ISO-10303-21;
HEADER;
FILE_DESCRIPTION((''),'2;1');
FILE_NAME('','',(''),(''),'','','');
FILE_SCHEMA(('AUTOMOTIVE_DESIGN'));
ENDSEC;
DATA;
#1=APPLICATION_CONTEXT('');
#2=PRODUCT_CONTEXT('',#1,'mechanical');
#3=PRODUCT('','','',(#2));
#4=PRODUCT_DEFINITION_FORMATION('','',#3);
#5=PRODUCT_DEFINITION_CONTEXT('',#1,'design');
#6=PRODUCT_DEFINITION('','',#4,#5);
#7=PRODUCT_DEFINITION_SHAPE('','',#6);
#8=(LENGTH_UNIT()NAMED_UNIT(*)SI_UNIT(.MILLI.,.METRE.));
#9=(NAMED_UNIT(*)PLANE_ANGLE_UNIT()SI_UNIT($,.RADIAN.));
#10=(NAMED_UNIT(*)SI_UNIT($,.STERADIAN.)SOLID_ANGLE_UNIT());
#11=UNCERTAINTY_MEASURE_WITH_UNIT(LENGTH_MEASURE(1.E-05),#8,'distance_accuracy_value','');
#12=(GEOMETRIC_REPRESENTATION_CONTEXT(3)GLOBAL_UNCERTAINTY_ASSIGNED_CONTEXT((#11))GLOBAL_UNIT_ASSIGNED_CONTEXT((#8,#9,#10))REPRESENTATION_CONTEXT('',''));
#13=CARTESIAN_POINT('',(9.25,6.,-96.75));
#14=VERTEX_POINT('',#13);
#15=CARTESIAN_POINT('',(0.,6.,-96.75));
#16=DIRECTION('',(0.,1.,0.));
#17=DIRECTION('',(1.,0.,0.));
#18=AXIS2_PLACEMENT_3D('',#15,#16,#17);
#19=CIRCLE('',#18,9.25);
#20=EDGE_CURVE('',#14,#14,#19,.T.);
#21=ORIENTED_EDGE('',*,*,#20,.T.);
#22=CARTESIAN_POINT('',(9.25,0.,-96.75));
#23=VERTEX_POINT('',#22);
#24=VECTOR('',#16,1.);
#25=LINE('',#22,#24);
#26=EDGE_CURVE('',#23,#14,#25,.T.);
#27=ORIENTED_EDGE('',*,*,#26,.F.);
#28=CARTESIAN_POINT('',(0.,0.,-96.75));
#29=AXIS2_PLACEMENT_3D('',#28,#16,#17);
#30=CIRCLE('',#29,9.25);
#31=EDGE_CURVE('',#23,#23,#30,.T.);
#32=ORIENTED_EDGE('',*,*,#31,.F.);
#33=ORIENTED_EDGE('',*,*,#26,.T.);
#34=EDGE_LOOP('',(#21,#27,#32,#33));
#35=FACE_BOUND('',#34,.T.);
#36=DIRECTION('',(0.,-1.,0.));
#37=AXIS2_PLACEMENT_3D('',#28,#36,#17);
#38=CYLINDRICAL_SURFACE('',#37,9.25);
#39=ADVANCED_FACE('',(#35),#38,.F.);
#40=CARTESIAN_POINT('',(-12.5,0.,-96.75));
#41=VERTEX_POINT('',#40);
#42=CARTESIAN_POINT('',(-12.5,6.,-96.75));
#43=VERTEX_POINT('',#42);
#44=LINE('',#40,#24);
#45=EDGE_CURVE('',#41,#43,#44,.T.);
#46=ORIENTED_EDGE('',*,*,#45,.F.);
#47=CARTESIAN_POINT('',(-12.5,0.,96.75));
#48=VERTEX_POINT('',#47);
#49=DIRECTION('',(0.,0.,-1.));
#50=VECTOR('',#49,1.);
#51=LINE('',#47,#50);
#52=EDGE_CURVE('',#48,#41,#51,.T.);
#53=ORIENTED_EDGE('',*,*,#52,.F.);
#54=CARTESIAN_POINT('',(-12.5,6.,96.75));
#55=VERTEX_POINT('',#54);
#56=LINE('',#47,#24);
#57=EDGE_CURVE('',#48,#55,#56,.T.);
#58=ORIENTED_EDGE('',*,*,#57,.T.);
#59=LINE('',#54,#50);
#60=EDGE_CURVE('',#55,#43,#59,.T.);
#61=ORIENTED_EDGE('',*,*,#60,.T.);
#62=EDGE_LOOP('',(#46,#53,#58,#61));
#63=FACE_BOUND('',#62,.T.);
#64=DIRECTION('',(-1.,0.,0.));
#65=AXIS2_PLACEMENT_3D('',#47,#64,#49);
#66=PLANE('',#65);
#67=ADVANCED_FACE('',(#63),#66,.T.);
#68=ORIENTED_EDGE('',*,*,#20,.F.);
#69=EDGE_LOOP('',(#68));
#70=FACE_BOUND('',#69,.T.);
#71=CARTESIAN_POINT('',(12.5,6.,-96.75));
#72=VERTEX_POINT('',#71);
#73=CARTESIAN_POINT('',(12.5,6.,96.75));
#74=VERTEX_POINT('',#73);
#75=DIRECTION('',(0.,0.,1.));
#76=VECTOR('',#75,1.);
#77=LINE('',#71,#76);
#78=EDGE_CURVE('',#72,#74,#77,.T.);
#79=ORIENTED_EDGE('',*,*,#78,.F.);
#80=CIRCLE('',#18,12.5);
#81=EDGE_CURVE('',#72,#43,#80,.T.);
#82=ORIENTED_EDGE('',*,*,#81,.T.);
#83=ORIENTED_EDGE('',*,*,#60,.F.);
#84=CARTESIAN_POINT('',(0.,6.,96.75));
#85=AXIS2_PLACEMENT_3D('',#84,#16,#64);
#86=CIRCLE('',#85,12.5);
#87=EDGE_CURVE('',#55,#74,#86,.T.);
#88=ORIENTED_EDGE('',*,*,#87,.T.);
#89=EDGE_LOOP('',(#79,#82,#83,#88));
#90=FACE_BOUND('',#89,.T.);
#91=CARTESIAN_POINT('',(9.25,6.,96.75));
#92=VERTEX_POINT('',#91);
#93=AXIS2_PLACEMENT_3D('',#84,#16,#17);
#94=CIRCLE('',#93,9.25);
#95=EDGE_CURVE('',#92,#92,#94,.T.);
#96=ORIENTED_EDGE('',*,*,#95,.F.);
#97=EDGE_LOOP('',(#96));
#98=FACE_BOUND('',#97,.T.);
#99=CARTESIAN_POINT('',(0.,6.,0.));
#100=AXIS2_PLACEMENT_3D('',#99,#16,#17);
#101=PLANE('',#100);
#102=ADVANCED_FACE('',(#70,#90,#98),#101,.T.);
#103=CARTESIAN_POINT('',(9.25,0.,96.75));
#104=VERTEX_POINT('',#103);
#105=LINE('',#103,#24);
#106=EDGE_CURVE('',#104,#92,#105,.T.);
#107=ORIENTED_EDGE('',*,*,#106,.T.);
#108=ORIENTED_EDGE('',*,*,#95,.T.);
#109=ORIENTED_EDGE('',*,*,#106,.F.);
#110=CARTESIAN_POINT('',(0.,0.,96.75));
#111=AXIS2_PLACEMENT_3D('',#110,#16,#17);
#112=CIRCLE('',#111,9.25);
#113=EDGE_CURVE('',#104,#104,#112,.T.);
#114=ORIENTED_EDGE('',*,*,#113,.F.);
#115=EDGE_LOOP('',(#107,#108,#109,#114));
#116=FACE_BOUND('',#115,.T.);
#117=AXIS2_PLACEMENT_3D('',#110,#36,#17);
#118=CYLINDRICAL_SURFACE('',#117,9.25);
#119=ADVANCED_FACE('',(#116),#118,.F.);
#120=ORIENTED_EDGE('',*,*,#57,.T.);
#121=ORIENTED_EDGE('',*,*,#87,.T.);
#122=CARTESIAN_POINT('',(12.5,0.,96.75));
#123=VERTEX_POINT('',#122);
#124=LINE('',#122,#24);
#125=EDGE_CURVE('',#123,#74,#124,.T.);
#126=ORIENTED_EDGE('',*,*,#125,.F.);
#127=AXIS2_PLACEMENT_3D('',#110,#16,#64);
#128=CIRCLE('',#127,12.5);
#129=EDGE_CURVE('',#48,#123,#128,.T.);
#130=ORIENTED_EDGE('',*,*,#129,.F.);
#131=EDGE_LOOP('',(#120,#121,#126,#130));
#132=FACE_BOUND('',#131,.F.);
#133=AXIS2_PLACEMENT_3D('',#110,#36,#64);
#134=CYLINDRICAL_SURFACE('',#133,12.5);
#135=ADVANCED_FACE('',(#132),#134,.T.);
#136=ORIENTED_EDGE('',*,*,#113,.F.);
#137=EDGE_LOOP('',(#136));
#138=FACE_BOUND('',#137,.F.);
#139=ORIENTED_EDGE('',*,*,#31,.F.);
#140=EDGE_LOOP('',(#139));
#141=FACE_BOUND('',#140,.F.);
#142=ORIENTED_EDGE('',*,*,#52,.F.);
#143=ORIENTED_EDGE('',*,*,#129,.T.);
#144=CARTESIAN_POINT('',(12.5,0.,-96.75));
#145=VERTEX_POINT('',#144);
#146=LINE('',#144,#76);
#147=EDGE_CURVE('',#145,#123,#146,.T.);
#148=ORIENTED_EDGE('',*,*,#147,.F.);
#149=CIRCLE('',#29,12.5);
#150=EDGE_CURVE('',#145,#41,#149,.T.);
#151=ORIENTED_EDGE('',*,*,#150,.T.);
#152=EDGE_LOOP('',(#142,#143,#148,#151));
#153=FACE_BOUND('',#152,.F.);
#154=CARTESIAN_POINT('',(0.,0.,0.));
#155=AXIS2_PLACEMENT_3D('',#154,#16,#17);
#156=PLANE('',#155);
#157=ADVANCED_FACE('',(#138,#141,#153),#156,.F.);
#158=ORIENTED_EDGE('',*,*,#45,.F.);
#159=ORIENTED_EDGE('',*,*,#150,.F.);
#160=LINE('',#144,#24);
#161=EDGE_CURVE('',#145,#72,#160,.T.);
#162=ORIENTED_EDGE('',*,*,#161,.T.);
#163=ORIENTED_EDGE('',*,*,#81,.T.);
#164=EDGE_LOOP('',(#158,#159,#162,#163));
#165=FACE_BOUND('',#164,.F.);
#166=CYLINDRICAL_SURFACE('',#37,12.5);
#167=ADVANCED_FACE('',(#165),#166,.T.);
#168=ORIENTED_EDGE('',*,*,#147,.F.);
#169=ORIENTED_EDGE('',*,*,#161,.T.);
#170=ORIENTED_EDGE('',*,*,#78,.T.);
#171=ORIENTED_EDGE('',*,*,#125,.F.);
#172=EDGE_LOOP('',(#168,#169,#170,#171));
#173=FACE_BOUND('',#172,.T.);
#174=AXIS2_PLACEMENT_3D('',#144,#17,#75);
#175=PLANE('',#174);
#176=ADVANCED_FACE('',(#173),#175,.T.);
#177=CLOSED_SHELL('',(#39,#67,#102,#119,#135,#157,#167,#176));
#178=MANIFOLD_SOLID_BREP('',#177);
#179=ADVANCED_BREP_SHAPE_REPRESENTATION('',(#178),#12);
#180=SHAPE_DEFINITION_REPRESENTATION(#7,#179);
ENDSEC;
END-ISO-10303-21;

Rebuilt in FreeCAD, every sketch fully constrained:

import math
import FreeCAD as App
import Part
import Sketcher
from FreeCAD import Vector

doc = App.newDocument("Part")
body = doc.addObject("PartDesign::Body", "Body")

sketch1 = body.newObject("Sketcher::SketchObject", "Sketch")
sketch1.AttachmentSupport = (doc.getObject("XZ_Plane"), [""])
sketch1.MapMode = "FlatFace"
sketch1.addGeometry([
    Part.LineSegment(Vector(-12.5, -96.75, 0), Vector(-12.5, 96.75, 0)),
    Part.ArcOfCircle(Part.Circle(Vector(0, 96.75, 0), Vector(0, 0, 1), 12.5), math.radians(0), math.radians(180)),
    Part.LineSegment(Vector(12.5, 96.75, 0), Vector(12.5, -96.75, 0)),
    Part.ArcOfCircle(Part.Circle(Vector(0, -96.75, 0), Vector(0, 0, 1), 12.5), math.radians(180), math.radians(360)),
    Part.Circle(Vector(0, 96.75, 0), Vector(0, 0, 1), 9.25),
    Part.Circle(Vector(0, -96.75, 0), Vector(0, 0, 1), 9.25),
], False)
sketch1.addConstraint([
    Sketcher.Constraint("Tangent", 0, 2, 1, 2),
    Sketcher.Constraint("Tangent", 1, 1, 2, 1),
    Sketcher.Constraint("Tangent", 2, 2, 3, 2),
    Sketcher.Constraint("Tangent", 3, 1, 0, 1),
    Sketcher.Constraint("Vertical", 0),
    Sketcher.Constraint("Vertical", 2),
    Sketcher.Constraint("Coincident", 4, 3, 1, 3),
    Sketcher.Constraint("Coincident", 5, 3, 3, 3),
    Sketcher.Constraint("Equal", 4, 5),
    Sketcher.Constraint("Symmetric", 1, 3, 3, 3, -1, 1),
    Sketcher.Constraint("Diameter", 4, 18.5),
    Sketcher.Constraint("Radius", 1, 12.5),
    Sketcher.Constraint("DistanceY", 0, 1, 0, 2, 193.5),
])
pad1 = body.newObject("PartDesign::Pad", "Pad")
pad1.Profile = sketch1
pad1.Length = 6
pad1.Reversed = True

doc.recompute()
